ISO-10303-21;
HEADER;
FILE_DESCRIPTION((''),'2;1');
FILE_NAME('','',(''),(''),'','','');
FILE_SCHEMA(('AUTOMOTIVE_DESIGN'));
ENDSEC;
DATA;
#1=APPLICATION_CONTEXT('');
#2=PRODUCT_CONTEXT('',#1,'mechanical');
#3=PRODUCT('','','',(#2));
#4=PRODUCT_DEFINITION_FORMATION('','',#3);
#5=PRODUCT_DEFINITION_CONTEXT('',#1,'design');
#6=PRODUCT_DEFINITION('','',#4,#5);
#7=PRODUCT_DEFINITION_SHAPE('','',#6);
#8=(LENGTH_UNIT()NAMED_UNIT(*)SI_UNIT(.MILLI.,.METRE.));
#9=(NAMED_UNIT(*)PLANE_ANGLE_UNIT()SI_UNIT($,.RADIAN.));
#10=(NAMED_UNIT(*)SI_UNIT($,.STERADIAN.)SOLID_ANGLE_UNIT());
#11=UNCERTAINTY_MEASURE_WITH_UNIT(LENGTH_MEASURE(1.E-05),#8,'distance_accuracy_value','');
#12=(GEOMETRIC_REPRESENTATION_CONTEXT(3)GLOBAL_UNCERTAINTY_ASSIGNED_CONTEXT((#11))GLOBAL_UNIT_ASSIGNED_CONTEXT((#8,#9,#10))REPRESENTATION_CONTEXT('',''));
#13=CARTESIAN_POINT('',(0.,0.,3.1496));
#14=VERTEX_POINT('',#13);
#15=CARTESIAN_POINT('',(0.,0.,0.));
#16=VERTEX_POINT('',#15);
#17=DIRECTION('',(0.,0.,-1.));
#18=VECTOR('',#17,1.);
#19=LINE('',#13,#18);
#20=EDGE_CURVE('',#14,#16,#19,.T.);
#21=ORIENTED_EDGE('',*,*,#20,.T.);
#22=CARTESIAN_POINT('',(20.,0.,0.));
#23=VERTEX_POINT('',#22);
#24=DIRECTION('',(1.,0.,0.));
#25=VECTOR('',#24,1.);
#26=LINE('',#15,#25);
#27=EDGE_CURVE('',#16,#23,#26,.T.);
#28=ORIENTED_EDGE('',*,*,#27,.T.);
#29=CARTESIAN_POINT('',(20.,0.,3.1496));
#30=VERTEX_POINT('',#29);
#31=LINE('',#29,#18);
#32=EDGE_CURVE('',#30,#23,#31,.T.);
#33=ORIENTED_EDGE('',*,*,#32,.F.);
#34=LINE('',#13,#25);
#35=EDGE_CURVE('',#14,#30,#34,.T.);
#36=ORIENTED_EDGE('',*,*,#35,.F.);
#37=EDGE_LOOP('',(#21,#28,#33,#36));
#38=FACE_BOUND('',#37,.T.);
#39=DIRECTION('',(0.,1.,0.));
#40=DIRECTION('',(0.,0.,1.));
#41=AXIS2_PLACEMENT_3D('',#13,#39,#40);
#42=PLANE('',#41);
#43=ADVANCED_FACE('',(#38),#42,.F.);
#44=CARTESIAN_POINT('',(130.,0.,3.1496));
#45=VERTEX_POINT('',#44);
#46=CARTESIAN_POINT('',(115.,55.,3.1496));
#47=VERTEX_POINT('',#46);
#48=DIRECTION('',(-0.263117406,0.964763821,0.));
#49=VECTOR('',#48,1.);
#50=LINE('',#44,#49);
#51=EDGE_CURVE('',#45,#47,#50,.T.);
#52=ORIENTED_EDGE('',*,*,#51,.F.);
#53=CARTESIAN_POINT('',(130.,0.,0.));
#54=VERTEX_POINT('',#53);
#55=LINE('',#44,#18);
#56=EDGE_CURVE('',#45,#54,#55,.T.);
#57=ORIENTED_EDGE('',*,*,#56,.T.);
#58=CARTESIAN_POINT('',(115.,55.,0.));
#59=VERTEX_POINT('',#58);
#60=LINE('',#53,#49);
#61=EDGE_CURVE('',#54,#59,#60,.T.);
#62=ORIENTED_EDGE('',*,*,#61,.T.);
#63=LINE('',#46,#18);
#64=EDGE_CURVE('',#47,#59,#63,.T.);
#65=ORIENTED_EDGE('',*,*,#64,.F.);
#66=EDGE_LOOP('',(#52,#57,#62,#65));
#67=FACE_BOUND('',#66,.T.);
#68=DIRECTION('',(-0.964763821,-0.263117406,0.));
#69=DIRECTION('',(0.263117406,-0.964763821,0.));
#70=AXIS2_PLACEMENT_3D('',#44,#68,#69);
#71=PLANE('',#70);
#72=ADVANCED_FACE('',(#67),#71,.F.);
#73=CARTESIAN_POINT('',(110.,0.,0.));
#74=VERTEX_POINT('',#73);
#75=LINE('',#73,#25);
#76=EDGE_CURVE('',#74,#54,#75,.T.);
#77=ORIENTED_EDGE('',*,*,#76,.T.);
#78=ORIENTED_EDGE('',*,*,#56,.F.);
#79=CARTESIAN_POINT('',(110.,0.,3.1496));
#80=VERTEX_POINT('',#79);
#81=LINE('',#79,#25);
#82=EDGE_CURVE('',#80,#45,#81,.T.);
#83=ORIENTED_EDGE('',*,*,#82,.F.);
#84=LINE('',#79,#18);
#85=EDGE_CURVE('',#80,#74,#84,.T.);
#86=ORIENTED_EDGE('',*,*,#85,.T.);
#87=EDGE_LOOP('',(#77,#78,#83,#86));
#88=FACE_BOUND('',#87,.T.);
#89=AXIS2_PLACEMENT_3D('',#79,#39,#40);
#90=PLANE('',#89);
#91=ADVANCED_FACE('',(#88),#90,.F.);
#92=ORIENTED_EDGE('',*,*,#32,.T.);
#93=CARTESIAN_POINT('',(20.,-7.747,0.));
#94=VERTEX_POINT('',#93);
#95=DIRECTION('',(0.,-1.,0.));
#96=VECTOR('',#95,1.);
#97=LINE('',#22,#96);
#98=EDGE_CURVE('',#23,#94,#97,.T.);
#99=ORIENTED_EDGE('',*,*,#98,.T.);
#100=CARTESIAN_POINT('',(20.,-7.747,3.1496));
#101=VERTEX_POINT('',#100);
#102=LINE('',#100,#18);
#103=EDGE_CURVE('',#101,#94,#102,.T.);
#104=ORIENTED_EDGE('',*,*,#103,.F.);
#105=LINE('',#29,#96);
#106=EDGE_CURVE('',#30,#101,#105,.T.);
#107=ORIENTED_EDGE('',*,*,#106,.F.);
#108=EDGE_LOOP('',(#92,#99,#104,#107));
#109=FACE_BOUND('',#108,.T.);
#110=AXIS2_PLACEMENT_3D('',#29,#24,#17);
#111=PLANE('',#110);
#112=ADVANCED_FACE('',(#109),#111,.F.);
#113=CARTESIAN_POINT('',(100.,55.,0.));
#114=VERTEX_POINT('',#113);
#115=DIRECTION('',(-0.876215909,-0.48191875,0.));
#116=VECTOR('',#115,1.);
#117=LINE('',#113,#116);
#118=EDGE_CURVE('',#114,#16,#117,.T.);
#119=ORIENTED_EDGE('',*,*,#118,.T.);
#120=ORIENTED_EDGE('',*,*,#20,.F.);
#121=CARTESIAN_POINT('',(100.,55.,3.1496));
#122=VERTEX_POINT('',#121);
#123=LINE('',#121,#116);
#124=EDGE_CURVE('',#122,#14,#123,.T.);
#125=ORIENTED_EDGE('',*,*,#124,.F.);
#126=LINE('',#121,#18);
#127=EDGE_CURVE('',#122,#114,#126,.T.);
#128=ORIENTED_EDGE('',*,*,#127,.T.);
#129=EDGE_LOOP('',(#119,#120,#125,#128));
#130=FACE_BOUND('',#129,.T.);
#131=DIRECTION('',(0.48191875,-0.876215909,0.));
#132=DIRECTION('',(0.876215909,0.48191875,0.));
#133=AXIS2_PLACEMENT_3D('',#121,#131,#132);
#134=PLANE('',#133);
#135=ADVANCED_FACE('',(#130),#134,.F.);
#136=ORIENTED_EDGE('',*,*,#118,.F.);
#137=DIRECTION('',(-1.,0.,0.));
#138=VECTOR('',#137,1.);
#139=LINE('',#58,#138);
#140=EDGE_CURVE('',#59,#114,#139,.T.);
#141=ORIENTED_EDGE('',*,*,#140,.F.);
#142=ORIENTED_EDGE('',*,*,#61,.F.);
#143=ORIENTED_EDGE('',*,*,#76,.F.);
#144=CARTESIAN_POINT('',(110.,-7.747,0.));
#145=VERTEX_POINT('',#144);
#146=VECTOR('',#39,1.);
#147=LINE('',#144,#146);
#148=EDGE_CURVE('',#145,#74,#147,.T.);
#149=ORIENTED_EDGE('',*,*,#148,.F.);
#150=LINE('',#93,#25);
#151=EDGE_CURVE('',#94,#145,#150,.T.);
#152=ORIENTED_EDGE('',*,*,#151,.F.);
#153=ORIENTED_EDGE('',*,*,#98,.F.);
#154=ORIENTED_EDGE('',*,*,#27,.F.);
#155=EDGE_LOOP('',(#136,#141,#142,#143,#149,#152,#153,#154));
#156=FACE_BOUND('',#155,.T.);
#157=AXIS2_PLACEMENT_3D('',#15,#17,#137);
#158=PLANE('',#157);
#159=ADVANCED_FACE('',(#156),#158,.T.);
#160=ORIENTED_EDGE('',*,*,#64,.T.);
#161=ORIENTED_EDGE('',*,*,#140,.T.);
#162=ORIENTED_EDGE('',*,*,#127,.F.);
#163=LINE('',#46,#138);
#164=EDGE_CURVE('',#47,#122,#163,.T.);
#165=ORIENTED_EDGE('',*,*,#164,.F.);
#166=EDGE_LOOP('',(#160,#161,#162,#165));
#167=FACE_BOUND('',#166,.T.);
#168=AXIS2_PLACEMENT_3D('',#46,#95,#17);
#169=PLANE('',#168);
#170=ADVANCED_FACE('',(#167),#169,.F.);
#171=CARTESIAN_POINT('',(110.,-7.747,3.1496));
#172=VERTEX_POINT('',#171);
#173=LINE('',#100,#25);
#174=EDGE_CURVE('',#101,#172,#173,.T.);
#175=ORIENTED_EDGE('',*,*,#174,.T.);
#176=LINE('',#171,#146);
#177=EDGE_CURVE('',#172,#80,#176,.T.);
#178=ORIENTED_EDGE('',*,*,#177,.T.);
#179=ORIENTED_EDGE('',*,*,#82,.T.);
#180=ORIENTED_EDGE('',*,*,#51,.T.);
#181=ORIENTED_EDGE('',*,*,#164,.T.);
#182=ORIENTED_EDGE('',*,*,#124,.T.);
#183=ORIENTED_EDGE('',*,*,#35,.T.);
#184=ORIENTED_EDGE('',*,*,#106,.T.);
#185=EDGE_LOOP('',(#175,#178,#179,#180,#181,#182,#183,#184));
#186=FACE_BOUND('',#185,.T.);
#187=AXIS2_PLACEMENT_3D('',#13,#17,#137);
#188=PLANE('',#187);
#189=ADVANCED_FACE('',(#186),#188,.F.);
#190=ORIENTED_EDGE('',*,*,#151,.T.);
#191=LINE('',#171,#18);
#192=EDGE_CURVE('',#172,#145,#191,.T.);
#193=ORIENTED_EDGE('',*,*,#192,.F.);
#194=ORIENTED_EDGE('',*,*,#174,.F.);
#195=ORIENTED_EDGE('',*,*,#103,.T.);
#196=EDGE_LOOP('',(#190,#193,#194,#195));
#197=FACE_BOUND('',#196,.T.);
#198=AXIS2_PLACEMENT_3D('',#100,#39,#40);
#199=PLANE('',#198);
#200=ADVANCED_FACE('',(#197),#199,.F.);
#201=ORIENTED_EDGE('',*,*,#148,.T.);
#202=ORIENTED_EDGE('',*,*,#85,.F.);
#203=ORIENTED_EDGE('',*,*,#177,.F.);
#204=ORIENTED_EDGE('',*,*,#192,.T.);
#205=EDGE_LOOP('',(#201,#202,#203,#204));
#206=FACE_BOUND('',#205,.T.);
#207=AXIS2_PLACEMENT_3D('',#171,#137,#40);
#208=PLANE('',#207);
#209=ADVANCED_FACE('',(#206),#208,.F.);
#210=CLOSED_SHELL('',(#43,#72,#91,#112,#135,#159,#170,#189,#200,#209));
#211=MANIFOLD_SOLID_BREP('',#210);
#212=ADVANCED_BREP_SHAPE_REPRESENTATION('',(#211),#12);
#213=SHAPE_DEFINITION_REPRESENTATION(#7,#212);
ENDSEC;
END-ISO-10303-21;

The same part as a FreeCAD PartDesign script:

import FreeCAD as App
import Part
import Sketcher

doc = App.newDocument("Part")
params = doc.addObject("Spreadsheet::Sheet", "Params")
for row, (alias, value) in enumerate([
    ("sketch1_width", "20 mm"),
    ("sketch1_width2", "90 mm"),
    ("sketch1_width3", "15 mm"),
    ("pad1_length", "3.1496 mm"),
], start=1):
    params.set(f"A{row}", alias)
    params.set(f"B{row}", "=" + value)
    params.setAlias(f"B{row}", alias)

body = doc.addObject("PartDesign::Body", "Body")

sketch1 = body.newObject("Sketcher::SketchObject", "Sketch")
sketch1.AttachmentSupport = (doc.getObject("XY_Plane"), [""])
sketch1.MapMode = "FlatFace"
sketch1.addGeometry([
    Part.LineSegment(App.Vector(0, 0, 0), App.Vector(20, 0, 0)),
    Part.LineSegment(App.Vector(20, 0, 0), App.Vector(20, -7.747, 0)),
    Part.LineSegment(App.Vector(20, -7.747, 0), App.Vector(110, -7.747, 0)),
    Part.LineSegment(App.Vector(110, -7.747, 0), App.Vector(110, 0, 0)),
    Part.LineSegment(App.Vector(110, 0, 0), App.Vector(130, 0, 0)),
    Part.LineSegment(App.Vector(130, 0, 0), App.Vector(115, 55, 0)),
    Part.LineSegment(App.Vector(115, 55, 0), App.Vector(100, 55, 0)),
    Part.LineSegment(App.Vector(100, 55, 0), App.Vector(0, 0, 0)),
], False)
sketch1.addConstraint([
    Sketcher.Constraint("Coincident", 0, 2, 1, 1),
    Sketcher.Constraint("Coincident", 1, 2, 2, 1),
    Sketcher.Constraint("Coincident", 2, 2, 3, 1),
    Sketcher.Constraint("Coincident", 3, 2, 4, 1),
    Sketcher.Constraint("Coincident", 4, 2, 5, 1),
    Sketcher.Constraint("Coincident", 5, 2, 6, 1),
    Sketcher.Constraint("Coincident", 6, 2, 7, 1),
    Sketcher.Constraint("Coincident", 7, 2, 0, 1),
    Sketcher.Constraint("Horizontal", 0),
    Sketcher.Constraint("Vertical", 1),
    Sketcher.Constraint("Horizontal", 2),
    Sketcher.Constraint("Vertical", 3),
    Sketcher.Constraint("Horizontal", 4),
    Sketcher.Constraint("Horizontal", 6),
    Sketcher.Constraint("Coincident", 7, 2, -1, 1),
    Sketcher.Constraint("PointOnObject", 3, 2, -1),
    Sketcher.Constraint("Equal", 0, 4),
    Sketcher.Constraint("DistanceX", 0, 1, 0, 2, 20.0),
    Sketcher.Constraint("DistanceX", 2, 1, 2, 2, 90.0),
    Sketcher.Constraint("DistanceX", 6, 2, 6, 1, 15.0),
    Sketcher.Constraint("DistanceX", -1, 1, 5, 2, 115.0),
    Sketcher.Constraint("DistanceY", -1, 1, 5, 2, 55.0),
    Sketcher.Constraint("DistanceY", 1, 2, 1, 1, 7.747),
])
sketch1.setExpression("Constraints[17]", "Params.sketch1_width")
sketch1.setExpression("Constraints[18]", "Params.sketch1_width2")
sketch1.setExpression("Constraints[19]", "Params.sketch1_width3")
pad1 = body.newObject("PartDesign::Pad", "Pad")
pad1.Profile = sketch1
pad1.setExpression("Length", "Params.pad1_length")

doc.recompute()
